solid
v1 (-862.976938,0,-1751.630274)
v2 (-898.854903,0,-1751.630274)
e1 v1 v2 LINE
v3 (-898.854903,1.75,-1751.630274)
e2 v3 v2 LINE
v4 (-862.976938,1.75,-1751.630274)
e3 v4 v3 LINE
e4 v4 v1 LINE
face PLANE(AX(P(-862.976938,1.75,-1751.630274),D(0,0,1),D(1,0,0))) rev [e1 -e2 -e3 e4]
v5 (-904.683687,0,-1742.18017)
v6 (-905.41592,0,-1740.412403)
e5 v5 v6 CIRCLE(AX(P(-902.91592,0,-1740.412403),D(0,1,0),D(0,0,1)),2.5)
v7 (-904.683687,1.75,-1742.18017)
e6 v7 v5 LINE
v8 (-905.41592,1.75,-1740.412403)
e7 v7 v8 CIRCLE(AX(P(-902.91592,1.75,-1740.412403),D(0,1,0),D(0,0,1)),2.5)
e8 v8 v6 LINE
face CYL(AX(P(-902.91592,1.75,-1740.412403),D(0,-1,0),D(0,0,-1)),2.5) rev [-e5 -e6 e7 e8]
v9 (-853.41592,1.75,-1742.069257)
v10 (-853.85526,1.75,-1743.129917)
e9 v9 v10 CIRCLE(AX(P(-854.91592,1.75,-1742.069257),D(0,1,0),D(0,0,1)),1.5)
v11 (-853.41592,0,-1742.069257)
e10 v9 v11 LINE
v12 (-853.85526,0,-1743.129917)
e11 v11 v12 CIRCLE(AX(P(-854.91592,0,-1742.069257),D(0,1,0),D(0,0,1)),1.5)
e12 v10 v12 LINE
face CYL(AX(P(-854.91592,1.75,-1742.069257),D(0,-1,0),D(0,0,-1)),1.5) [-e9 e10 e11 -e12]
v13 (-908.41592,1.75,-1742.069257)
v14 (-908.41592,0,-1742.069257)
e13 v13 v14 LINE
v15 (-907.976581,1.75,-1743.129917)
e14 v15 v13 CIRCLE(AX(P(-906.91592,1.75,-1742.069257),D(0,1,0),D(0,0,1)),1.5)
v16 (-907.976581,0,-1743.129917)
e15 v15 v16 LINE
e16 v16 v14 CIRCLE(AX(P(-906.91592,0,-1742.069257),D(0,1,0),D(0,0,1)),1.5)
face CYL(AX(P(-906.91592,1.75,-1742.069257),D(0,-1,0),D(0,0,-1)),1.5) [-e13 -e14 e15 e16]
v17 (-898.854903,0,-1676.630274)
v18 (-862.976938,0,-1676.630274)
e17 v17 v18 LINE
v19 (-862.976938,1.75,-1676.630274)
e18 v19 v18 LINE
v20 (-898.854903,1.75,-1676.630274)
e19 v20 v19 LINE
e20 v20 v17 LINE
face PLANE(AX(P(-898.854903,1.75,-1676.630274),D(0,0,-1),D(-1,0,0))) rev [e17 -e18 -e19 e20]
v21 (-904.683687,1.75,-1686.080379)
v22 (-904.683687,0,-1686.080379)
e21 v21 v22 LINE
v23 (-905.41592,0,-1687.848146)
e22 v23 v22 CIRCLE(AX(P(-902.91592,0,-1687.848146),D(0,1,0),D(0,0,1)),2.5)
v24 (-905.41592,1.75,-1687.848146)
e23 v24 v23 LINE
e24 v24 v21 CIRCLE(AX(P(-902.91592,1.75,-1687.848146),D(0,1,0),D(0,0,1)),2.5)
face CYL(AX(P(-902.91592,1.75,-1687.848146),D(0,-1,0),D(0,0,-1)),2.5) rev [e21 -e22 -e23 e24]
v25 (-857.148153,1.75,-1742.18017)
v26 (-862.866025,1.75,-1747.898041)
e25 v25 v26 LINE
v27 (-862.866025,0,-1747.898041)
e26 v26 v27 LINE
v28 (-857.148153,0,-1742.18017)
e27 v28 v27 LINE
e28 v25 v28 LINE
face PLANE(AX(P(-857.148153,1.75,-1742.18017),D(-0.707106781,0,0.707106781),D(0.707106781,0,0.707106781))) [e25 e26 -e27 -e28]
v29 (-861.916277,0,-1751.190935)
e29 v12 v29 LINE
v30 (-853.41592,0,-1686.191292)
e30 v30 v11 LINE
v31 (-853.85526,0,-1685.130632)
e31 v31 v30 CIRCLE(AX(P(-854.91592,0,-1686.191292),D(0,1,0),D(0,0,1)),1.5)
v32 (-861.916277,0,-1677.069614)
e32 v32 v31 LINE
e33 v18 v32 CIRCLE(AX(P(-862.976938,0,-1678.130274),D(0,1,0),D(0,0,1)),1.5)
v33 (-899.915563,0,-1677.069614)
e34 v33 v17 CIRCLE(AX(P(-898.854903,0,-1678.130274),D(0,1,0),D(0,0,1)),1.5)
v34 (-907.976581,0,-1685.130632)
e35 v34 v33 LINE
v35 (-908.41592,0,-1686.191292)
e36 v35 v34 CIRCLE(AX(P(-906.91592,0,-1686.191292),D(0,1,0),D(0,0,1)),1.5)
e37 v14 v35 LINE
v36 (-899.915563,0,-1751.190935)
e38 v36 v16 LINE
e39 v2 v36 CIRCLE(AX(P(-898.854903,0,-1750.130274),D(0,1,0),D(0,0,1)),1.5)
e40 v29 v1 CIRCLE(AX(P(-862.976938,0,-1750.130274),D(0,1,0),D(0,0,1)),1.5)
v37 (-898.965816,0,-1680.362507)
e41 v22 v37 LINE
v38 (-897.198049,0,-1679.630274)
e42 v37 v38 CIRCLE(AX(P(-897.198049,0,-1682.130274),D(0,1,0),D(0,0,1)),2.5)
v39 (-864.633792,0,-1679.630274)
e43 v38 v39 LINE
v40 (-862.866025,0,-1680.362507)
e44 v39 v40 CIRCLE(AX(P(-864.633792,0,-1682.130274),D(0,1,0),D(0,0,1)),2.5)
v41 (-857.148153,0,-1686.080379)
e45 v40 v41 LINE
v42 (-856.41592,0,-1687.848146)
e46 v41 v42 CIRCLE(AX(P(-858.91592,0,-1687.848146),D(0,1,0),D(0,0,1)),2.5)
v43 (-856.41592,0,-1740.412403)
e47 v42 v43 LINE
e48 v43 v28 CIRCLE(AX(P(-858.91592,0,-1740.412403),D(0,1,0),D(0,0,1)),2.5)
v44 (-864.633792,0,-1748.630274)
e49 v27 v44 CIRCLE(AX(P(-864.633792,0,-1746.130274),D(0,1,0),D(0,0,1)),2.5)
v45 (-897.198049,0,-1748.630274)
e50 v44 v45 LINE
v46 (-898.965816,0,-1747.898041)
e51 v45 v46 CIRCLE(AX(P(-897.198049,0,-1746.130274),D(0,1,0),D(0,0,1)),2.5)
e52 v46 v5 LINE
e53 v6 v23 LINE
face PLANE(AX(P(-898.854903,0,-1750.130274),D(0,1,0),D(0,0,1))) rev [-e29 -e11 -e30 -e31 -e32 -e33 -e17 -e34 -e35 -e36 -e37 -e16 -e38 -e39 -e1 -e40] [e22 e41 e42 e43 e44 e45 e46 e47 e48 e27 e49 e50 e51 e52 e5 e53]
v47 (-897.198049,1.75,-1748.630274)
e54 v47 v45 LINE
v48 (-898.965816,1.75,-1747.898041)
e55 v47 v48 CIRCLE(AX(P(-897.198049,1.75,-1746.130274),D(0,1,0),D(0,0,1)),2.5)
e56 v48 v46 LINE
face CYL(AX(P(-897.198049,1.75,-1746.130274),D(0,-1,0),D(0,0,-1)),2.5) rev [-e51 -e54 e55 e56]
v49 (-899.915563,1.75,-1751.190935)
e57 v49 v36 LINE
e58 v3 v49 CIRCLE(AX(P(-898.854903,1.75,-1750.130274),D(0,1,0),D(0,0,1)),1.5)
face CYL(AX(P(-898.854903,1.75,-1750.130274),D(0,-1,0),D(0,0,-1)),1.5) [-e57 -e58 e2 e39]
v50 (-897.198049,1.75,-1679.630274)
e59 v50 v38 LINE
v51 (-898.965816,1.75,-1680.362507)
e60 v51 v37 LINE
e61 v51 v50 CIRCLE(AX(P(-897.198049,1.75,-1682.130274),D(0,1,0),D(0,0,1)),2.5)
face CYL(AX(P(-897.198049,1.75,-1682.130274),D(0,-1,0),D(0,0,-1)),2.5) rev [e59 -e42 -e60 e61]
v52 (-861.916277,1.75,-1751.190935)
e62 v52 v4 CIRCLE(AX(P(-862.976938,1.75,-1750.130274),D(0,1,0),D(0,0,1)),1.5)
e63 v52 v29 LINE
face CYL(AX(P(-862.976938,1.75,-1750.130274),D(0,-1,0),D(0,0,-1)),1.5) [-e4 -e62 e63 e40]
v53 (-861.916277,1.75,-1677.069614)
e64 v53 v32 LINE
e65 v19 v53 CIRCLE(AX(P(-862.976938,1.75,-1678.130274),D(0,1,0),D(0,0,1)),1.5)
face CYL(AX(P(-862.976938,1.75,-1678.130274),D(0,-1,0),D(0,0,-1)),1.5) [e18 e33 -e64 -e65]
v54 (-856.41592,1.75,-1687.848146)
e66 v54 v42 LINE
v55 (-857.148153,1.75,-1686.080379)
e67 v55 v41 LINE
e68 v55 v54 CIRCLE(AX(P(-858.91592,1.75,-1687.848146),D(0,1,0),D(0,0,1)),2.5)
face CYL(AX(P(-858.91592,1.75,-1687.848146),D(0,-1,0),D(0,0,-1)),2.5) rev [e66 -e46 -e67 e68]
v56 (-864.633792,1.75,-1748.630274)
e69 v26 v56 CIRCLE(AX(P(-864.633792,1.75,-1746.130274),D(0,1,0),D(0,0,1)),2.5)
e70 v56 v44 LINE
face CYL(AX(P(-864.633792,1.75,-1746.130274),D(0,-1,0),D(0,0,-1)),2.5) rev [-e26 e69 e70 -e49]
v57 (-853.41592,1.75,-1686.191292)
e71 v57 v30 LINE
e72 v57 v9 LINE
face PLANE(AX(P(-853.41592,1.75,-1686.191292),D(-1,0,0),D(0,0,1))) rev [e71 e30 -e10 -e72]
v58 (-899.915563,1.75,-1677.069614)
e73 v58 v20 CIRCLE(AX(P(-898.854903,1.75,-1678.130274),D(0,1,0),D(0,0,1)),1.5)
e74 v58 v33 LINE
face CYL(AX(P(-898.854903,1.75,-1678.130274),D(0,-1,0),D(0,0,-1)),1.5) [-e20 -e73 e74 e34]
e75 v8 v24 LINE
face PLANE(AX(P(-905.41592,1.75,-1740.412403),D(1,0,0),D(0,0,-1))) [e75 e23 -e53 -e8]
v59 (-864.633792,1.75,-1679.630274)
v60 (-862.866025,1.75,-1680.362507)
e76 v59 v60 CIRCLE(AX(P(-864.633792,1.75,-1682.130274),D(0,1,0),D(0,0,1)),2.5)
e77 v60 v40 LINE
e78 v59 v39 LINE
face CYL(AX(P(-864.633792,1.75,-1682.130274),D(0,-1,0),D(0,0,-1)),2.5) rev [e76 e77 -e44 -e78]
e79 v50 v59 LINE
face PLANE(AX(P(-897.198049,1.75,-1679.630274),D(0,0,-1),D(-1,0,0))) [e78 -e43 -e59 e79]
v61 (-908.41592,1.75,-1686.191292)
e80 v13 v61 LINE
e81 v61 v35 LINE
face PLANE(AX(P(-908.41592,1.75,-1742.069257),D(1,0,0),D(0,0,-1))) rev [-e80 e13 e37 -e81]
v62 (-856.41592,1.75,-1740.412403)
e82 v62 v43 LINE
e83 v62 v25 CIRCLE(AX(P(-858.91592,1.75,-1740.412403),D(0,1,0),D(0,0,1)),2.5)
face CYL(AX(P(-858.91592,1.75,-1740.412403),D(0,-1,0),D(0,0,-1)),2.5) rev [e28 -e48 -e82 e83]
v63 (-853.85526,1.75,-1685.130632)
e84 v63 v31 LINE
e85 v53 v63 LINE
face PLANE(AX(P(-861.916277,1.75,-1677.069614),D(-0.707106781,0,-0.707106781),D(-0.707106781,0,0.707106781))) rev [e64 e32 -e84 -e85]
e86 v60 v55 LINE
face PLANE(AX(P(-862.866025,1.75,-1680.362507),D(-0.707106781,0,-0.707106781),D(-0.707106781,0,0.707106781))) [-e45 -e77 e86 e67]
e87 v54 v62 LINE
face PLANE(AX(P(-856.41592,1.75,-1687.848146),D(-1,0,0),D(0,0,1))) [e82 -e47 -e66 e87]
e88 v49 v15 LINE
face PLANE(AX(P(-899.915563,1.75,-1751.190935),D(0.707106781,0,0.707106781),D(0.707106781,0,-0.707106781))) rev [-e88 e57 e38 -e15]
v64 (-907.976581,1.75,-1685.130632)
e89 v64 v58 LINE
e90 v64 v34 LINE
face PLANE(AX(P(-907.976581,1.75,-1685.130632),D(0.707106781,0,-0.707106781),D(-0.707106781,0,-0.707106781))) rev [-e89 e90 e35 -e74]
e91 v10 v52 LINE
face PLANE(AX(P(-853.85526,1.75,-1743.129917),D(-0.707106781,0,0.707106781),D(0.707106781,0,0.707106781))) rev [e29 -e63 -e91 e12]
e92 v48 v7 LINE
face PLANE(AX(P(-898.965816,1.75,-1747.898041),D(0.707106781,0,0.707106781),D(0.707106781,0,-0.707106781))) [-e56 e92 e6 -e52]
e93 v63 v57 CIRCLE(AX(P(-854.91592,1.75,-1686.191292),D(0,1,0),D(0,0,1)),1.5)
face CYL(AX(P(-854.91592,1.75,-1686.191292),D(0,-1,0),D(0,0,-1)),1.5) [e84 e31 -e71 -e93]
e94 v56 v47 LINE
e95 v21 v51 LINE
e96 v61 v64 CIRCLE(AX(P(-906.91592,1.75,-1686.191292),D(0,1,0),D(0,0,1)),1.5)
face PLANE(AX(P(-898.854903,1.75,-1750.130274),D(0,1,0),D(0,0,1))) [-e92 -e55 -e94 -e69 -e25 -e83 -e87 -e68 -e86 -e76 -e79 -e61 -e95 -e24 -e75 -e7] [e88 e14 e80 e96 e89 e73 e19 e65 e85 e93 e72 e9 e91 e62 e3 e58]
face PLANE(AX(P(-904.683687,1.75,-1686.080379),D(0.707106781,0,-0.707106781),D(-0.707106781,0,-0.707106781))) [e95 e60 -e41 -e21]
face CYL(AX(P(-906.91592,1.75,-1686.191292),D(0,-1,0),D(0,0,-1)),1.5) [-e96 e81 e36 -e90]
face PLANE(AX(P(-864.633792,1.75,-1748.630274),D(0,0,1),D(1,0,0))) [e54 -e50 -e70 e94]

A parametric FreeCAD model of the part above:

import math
import FreeCAD as App
import Part
import Sketcher

doc = App.newDocument("Part")
body = doc.addObject("PartDesign::Body", "Body")

# Sketch on XZ plane
sketch1 = body.newObject("Sketcher::SketchObject", "Sketch")
sketch1.AttachmentSupport = (doc.getObject("XZ_Plane"), [""])
sketch1.MapMode = "FlatFace"
sketch1.addGeometry(Part.LineSegment(App.Vector(-899.9, -1751.2, 0), App.Vector(-908, -1743.1, 0)), False)
sketch1.addGeometry(Part.ArcOfCircle(Part.Circle(App.Vector(-906.9, -1742.1, 0), App.Vector(0, 0, 1), 1.5), math.radians(180), math.radians(225)), False)
sketch1.addGeometry(Part.LineSegment(App.Vector(-908.4, -1742.1, 0), App.Vector(-908.4, -1686.2, 0)), False)
sketch1.addGeometry(Part.ArcOfCircle(Part.Circle(App.Vector(-906.9, -1686.2, 0), App.Vector(0, 0, 1), 1.5), math.radians(135), math.radians(180)), False)
sketch1.addGeometry(Part.LineSegment(App.Vector(-908, -1685.1, 0), App.Vector(-899.9, -1677.1, 0)), False)
sketch1.addGeometry(Part.ArcOfCircle(Part.Circle(App.Vector(-898.9, -1678.1, 0), App.Vector(0, 0, 1), 1.5), math.radians(90), math.radians(135)), False)
sketch1.addGeometry(Part.LineSegment(App.Vector(-898.9, -1676.6, 0), App.Vector(-863, -1676.6, 0)), False)
sketch1.addGeometry(Part.ArcOfCircle(Part.Circle(App.Vector(-863, -1678.1, 0), App.Vector(0, 0, 1), 1.5), math.radians(45), math.radians(90)), False)
sketch1.addGeometry(Part.LineSegment(App.Vector(-861.9, -1677.1, 0), App.Vector(-853.9, -1685.1, 0)), False)
sketch1.addGeometry(Part.ArcOfCircle(Part.Circle(App.Vector(-854.9, -1686.2, 0), App.Vector(0, 0, 1), 1.5), math.radians(0), math.radians(45)), False)
sketch1.addGeometry(Part.LineSegment(App.Vector(-853.4, -1686.2, 0), App.Vector(-853.4, -1742.1, 0)), False)
sketch1.addGeometry(Part.ArcOfCircle(Part.Circle(App.Vector(-854.9, -1742.1, 0), App.Vector(0, 0, 1), 1.5), math.radians(-45), math.radians(0)), False)
sketch1.addGeometry(Part.LineSegment(App.Vector(-853.9, -1743.1, 0), App.Vector(-861.9, -1751.2, 0)), False)
sketch1.addGeometry(Part.ArcOfCircle(Part.Circle(App.Vector(-863, -1750.1, 0), App.Vector(0, 0, 1), 1.5), math.radians(-90), math.radians(-45)), False)
sketch1.addGeometry(Part.LineSegment(App.Vector(-863, -1751.6, 0), App.Vector(-898.9, -1751.6, 0)), False)
sketch1.addGeometry(Part.ArcOfCircle(Part.Circle(App.Vector(-898.9, -1750.1, 0), App.Vector(0, 0, 1), 1.5), math.radians(-135), math.radians(-90)), False)
sketch1.addGeometry(Part.LineSegment(App.Vector(-904.7, -1742.2, 0), App.Vector(-899, -1747.9, 0)), False)
sketch1.addGeometry(Part.ArcOfCircle(Part.Circle(App.Vector(-897.2, -1746.1, 0), App.Vector(0, 0, 1), 2.5), math.radians(-135), math.radians(-90)), False)
sketch1.addGeometry(Part.LineSegment(App.Vector(-897.2, -1748.6, 0), App.Vector(-864.6, -1748.6, 0)), False)
sketch1.addGeometry(Part.ArcOfCircle(Part.Circle(App.Vector(-864.6, -1746.1, 0), App.Vector(0, 0, 1), 2.5), math.radians(-90), math.radians(-45)), False)
sketch1.addGeometry(Part.LineSegment(App.Vector(-862.9, -1747.9, 0), App.Vector(-857.1, -1742.2, 0)), False)
sketch1.addGeometry(Part.ArcOfCircle(Part.Circle(App.Vector(-858.9, -1740.4, 0), App.Vector(0, 0, 1), 2.5), math.radians(-45), math.radians(0)), False)
sketch1.addGeometry(Part.LineSegment(App.Vector(-856.4, -1740.4, 0), App.Vector(-856.4, -1687.8, 0)), False)
sketch1.addGeometry(Part.ArcOfCircle(Part.Circle(App.Vector(-858.9, -1687.8, 0), App.Vector(0, 0, 1), 2.5), math.radians(0), math.radians(45)), False)
sketch1.addGeometry(Part.LineSegment(App.Vector(-857.1, -1686.1, 0), App.Vector(-862.9, -1680.4, 0)), False)
sketch1.addGeometry(Part.ArcOfCircle(Part.Circle(App.Vector(-864.6, -1682.1, 0), App.Vector(0, 0, 1), 2.5), math.radians(45), math.radians(90)), False)
sketch1.addGeometry(Part.LineSegment(App.Vector(-864.6, -1679.6, 0), App.Vector(-897.2, -1679.6, 0)), False)
sketch1.addGeometry(Part.ArcOfCircle(Part.Circle(App.Vector(-897.2, -1682.1, 0), App.Vector(0, 0, 1), 2.5), math.radians(90), math.radians(135)), False)
sketch1.addGeometry(Part.LineSegment(App.Vector(-899, -1680.4, 0), App.Vector(-904.7, -1686.1, 0)), False)
sketch1.addGeometry(Part.ArcOfCircle(Part.Circle(App.Vector(-902.9, -1687.8, 0), App.Vector(0, 0, 1), 2.5), math.radians(135), math.radians(180)), False)
sketch1.addGeometry(Part.LineSegment(App.Vector(-905.4, -1687.8, 0), App.Vector(-905.4, -1740.4, 0)), False)
sketch1.addGeometry(Part.ArcOfCircle(Part.Circle(App.Vector(-902.9, -1740.4, 0), App.Vector(0, 0, 1), 2.5), math.radians(-180), math.radians(-135)), False)
sketch1.addConstraint(Sketcher.Constraint("Tangent", 0, 2, 1, 2))
sketch1.addConstraint(Sketcher.Constraint("Tangent", 1, 1, 2, 1))
sketch1.addConstraint(Sketcher.Constraint("Tangent", 2, 2, 3, 2))
sketch1.addConstraint(Sketcher.Constraint("Tangent", 3, 1, 4, 1))
sketch1.addConstraint(Sketcher.Constraint("Tangent", 4, 2, 5, 2))
sketch1.addConstraint(Sketcher.Constraint("Tangent", 5, 1, 6, 1))
sketch1.addConstraint(Sketcher.Constraint("Tangent", 6, 2, 7, 2))
sketch1.addConstraint(Sketcher.Constraint("Tangent", 7, 1, 8, 1))
sketch1.addConstraint(Sketcher.Constraint("Tangent", 8, 2, 9, 2))
sketch1.addConstraint(Sketcher.Constraint("Tangent", 9, 1, 10, 1))
sketch1.addConstraint(Sketcher.Constraint("Tangent", 10, 2, 11, 2))
sketch1.addConstraint(Sketcher.Constraint("Tangent", 11, 1, 12, 1))
sketch1.addConstraint(Sketcher.Constraint("Tangent", 12, 2, 13, 2))
sketch1.addConstraint(Sketcher.Constraint("Tangent", 13, 1, 14, 1))
sketch1.addConstraint(Sketcher.Constraint("Tangent", 14, 2, 15, 2))
sketch1.addConstraint(Sketcher.Constraint("Tangent", 15, 1, 0, 1))
sketch1.addConstraint(Sketcher.Constraint("Tangent", 16, 2, 17, 1))
sketch1.addConstraint(Sketcher.Constraint("Tangent", 17, 2, 18, 1))
sketch1.addConstraint(Sketcher.Constraint("Tangent", 18, 2, 19, 1))
sketch1.addConstraint(Sketcher.Constraint("Tangent", 19, 2, 20, 1))
sketch1.addConstraint(Sketcher.Constraint("Tangent", 20, 2, 21, 1))
sketch1.addConstraint(Sketcher.Constraint("Tangent", 21, 2, 22, 1))
sketch1.addConstraint(Sketcher.Constraint("Tangent", 22, 2, 23, 1))
sketch1.addConstraint(Sketcher.Constraint("Tangent", 23, 2, 24, 1))
sketch1.addConstraint(Sketcher.Constraint("Tangent", 24, 2, 25, 1))
sketch1.addConstraint(Sketcher.Constraint("Tangent", 25, 2, 26, 1))
sketch1.addConstraint(Sketcher.Constraint("Tangent", 26, 2, 27, 1))
sketch1.addConstraint(Sketcher.Constraint("Tangent", 27, 2, 28, 1))
sketch1.addConstraint(Sketcher.Constraint("Tangent", 28, 2, 29, 1))
sketch1.addConstraint(Sketcher.Constraint("Tangent", 29, 2, 30, 1))
sketch1.addConstraint(Sketcher.Constraint("Tangent", 30, 2, 31, 1))
sketch1.addConstraint(Sketcher.Constraint("Tangent", 31, 2, 16, 1))
sketch1.addConstraint(Sketcher.Constraint("Vertical", 2))
sketch1.addConstraint(Sketcher.Constraint("Horizontal", 6))
sketch1.addConstraint(Sketcher.Constraint("Vertical", 10))
sketch1.addConstraint(Sketcher.Constraint("Horizontal", 14))
sketch1.addConstraint(Sketcher.Constraint("Horizontal", 18))
sketch1.addConstraint(Sketcher.Constraint("Vertical", 22))
sketch1.addConstraint(Sketcher.Constraint("Horizontal", 26))
sketch1.addConstraint(Sketcher.Constraint("Vertical", 30))
sketch1.addConstraint(Sketcher.Constraint("Equal", 1, 3))
sketch1.addConstraint(Sketcher.Constraint("Equal", 3, 5))
sketch1.addConstraint(Sketcher.Constraint("Equal", 5, 7))
sketch1.addConstraint(Sketcher.Constraint("Equal", 7, 9))
sketch1.addConstraint(Sketcher.Constraint("Equal", 9, 11))
sketch1.addConstraint(Sketcher.Constraint("Equal", 11, 13))
sketch1.addConstraint(Sketcher.Constraint("Equal", 13, 15))
sketch1.addConstraint(Sketcher.Constraint("Equal", 17, 19))
sketch1.addConstraint(Sketcher.Constraint("Equal", 19, 21))
sketch1.addConstraint(Sketcher.Constraint("Equal", 21, 23))
sketch1.addConstraint(Sketcher.Constraint("Equal", 23, 25))
sketch1.addConstraint(Sketcher.Constraint("Equal", 25, 27))
sketch1.addConstraint(Sketcher.Constraint("Equal", 27, 29))
sketch1.addConstraint(Sketcher.Constraint("Equal", 29, 31))
sketch1.addConstraint(Sketcher.Constraint("Perpendicular", 0, 4))
sketch1.addConstraint(Sketcher.Constraint("Perpendicular", 4, 8))
sketch1.addConstraint(Sketcher.Constraint("Perpendicular", 8, 12))
sketch1.addConstraint(Sketcher.Constraint("Perpendicular", 12, 16))
sketch1.addConstraint(Sketcher.Constraint("Perpendicular", 16, 20))
sketch1.addConstraint(Sketcher.Constraint("Perpendicular", 20, 24))
sketch1.addConstraint(Sketcher.Constraint("Perpendicular", 24, 28))
sketch1.addConstraint(Sketcher.Constraint("Horizontal", 3, 3, 9, 3))
sketch1.addConstraint(Sketcher.Constraint("Horizontal", 1, 3, 11, 3))
sketch1.addConstraint(Sketcher.Constraint("Horizontal", 23, 3, 29, 3))
sketch1.addConstraint(Sketcher.Constraint("Horizontal", 21, 3, 31, 3))
sketch1.addConstraint(Sketcher.Constraint("Horizontal", 4, 2, 7, 1))
sketch1.addConstraint(Sketcher.Constraint("Vertical", 7, 3, 13, 3))
sketch1.addConstraint(Sketcher.Constraint("Vertical", 19, 3, 25, 3))
sketch1.addConstraint(Sketcher.Constraint("Radius", 1, 1.5))
sketch1.addConstraint(Sketcher.Constraint("Radius", 17, 2.5))
sketch1.addConstraint(Sketcher.Constraint("DistanceX", 3, 3, 9, 3, 52.0))
sketch1.addConstraint(Sketcher.Constraint("DistanceY", 13, 3, 7, 3, 72.0))
sketch1.addConstraint(Sketcher.Constraint("DistanceY", 15, 3, 17, 3, 4.0))
sketch1.addConstraint(Sketcher.Constraint("DistanceX", 21, 3, 11, 3, 4.0))
sketch1.addConstraint(Sketcher.Constraint("DistanceY", 25, 3, 7, 3, 4.0))
sketch1.addConstraint(Sketcher.Constraint("DistanceX", 3, 3, 29, 3, 4.0))
sketch1.addConstraint(Sketcher.Constraint("Distance", 0, 11.4))
sketch1.addConstraint(Sketcher.Constraint("Distance", 16, 8.086292))
sketch1.addConstraint(Sketcher.Constraint("DistanceX", 1, 3, -1, 1, 906.91592))
sketch1.addConstraint(Sketcher.Constraint("DistanceY", 3, 3, -1, 1, 1686.191292))
pad1 = body.newObject("PartDesign::Pad", "Pad")
pad1.Profile = sketch1
pad1.Length = 1.75
pad1.Reversed = True

doc.recompute()
